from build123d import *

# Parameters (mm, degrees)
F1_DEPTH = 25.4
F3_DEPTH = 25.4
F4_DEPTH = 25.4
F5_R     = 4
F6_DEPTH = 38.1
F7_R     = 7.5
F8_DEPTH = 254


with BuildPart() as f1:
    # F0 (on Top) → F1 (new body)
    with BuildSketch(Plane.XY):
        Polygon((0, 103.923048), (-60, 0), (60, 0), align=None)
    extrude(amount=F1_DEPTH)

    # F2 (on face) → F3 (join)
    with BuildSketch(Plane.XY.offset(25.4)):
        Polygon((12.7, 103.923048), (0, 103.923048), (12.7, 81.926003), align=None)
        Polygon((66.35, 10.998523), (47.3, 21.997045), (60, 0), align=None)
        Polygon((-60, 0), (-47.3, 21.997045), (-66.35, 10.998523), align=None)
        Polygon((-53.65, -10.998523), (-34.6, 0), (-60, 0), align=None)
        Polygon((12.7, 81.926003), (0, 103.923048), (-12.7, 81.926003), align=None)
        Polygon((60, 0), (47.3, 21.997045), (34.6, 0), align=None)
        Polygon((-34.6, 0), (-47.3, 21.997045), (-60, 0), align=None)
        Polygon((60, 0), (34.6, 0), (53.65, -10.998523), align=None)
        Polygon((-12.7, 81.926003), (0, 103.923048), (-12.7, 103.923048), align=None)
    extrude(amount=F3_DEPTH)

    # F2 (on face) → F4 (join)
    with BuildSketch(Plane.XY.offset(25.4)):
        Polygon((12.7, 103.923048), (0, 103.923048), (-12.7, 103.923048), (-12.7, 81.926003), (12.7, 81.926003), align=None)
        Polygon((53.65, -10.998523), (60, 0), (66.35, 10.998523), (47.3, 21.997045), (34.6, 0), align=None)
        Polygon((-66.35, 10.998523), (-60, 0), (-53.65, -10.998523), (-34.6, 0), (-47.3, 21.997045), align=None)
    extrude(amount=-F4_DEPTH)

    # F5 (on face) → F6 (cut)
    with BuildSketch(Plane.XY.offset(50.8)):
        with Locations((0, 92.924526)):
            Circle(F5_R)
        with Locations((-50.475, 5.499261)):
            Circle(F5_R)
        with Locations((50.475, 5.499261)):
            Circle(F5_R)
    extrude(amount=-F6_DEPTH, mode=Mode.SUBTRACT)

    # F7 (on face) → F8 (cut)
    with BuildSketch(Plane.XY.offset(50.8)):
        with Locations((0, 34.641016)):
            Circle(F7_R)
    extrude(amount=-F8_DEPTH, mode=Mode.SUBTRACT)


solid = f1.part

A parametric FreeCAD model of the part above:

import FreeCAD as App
import Part
import Sketcher
from FreeCAD import Vector
Q = App.Units.Quantity


def add_polygon(sketch, points):
    """Adds a closed chain of lines whose ends are joined by coincident constraints."""
    first, n = sketch.GeometryCount, len(points)
    for a, b in zip(points, points[1:] + points[:1]):
        sketch.addGeometry(Part.LineSegment(App.Vector(*a, 0), App.Vector(*b, 0)), False)
    for i in range(n):
        sketch.addConstraint(Sketcher.Constraint("Coincident", first + i, 2, first + (i + 1) % n, 1))

doc = App.newDocument("Part")
body = doc.addObject("PartDesign::Body", "Body")

# Sketch on XY plane
sketch1 = body.newObject("Sketcher::SketchObject", "Sketch")
sketch1.AttachmentSupport = (doc.getObject("XY_Plane"), [""])
sketch1.MapMode = "FlatFace"
add_polygon(sketch1, [(0, 104), (-60, 0), (60, 0)])  # lines 0-2
sketch1.addConstraint(Sketcher.Constraint("Horizontal", 1))
sketch1.addConstraint(Sketcher.Constraint("Symmetric", 0, 2, 1, 2, -1, 1))
sketch1.addConstraint(Sketcher.Constraint("PointOnObject", 2, 2, -2))
sketch1.addConstraint(Sketcher.Constraint("Angle", 0, Q("-120 deg")))
sketch1.addConstraint(Sketcher.Constraint("DistanceX", 1, 1, 1, 2, Q("120 mm")))
pad1 = body.newObject("PartDesign::Pad", "Pad")
pad1.Profile = sketch1
pad1.Length = Q("1 in")

# Sketch on XY plane
sketch2 = body.newObject("Sketcher::SketchObject", "Sketch001")
sketch2.AttachmentSupport = (doc.getObject("XY_Plane"), [""])
sketch2.MapMode = "FlatFace"
sketch2.AttachmentOffset = App.Placement(Vector(0, 0, 1 * 25.4), App.Rotation())
add_polygon(sketch2, [(13, 104), (-13, 104), (-13, 82), (13, 82)])  # lines 0-3
add_polygon(sketch2, [(66, 11), (47, 22), (35, 0), (54, -11)])  # lines 4-7
add_polygon(sketch2, [(-47, 22), (-66, 11), (-54, -11), (-35, 0)])  # lines 8-11
sketch2.addConstraint(Sketcher.Constraint("Horizontal", 0))
sketch2.addConstraint(Sketcher.Constraint("Vertical", 1))
sketch2.addConstraint(Sketcher.Constraint("Horizontal", 2))
sketch2.addConstraint(Sketcher.Constraint("Vertical", 3))
sketch2.addConstraint(Sketcher.Constraint("Symmetric", 5, 2, 10, 2, -1, 1))
sketch2.addConstraint(Sketcher.Constraint("Symmetric", 7, 2, 8, 2, -2))
sketch2.addConstraint(Sketcher.Constraint("Symmetric", 6, 2, 9, 2, -2))
sketch2.addConstraint(Sketcher.Constraint("Symmetric", 4, 2, 11, 2, -2))
sketch2.addConstraint(Sketcher.Constraint("PointOnObject", 5, 2, -1))
sketch2.addConstraint(Sketcher.Constraint("Perpendicular", 4, 5))
sketch2.addConstraint(Sketcher.Constraint("Perpendicular", 5, 6))
sketch2.addConstraint(Sketcher.Constraint("Perpendicular", 6, 7))
sketch2.addConstraint(Sketcher.Constraint("DistanceX", 0, 2, 0, 1, Q("1 in")))
sketch2.addConstraint(Sketcher.Constraint("Distance", 5, Q("1 in")))
sketch2.addConstraint(Sketcher.Constraint("Angle", 4, Q("150.000001 deg")))
sketch2.addConstraint(Sketcher.Constraint("DistanceX", 0, 2, -1, 1, Q("0.5 in")))
sketch2.addConstraint(Sketcher.Constraint("DistanceX", 5, 2, 6, 2, Q("0.75 in")))
sketch2.addConstraint(Sketcher.Constraint("DistanceX", -1, 1, 4, 2, Q("47.3 mm")))
sketch2.addConstraint(Sketcher.Constraint("DistanceY", 1, 2, 1, 1, Q("21.997045 mm")))
sketch2.addConstraint(Sketcher.Constraint("DistanceY", 6, 2, 3, 2, Q("114.921571 mm")))
pad2 = body.newObject("PartDesign::Pad", "Pad001")
pad2.Profile = sketch2
pad2.Length = Q("1 in")

# Sketch on XY plane
sketch3 = body.newObject("Sketcher::SketchObject", "Sketch002")
sketch3.AttachmentSupport = (doc.getObject("XY_Plane"), [""])
sketch3.MapMode = "FlatFace"
sketch3.AttachmentOffset = App.Placement(Vector(0, 0, 1 * 25.4), App.Rotation())
add_polygon(sketch3, [(13, 104), (-13, 104), (-13, 82), (13, 82)])  # lines 0-3
add_polygon(sketch3, [(54, -11), (66, 11), (47, 22), (35, 0)])  # lines 4-7
add_polygon(sketch3, [(-66, 11), (-54, -11), (-35, 0), (-47, 22)])  # lines 8-11
sketch3.addConstraint(Sketcher.Constraint("Horizontal", 0))
sketch3.addConstraint(Sketcher.Constraint("Vertical", 1))
sketch3.addConstraint(Sketcher.Constraint("Horizontal", 2))
sketch3.addConstraint(Sketcher.Constraint("Vertical", 3))
sketch3.addConstraint(Sketcher.Constraint("Symmetric", 6, 2, 9, 2, -1, 1))
sketch3.addConstraint(Sketcher.Constraint("Symmetric", 7, 2, 8, 2, -2))
sketch3.addConstraint(Sketcher.Constraint("Symmetric", 5, 2, 10, 2, -2))
sketch3.addConstraint(Sketcher.Constraint("Symmetric", 4, 2, 11, 2, -2))
sketch3.addConstraint(Sketcher.Constraint("PointOnObject", 6, 2, -1))
sketch3.addConstraint(Sketcher.Constraint("Perpendicular", 4, 5))
sketch3.addConstraint(Sketcher.Constraint("Perpendicular", 5, 6))
sketch3.addConstraint(Sketcher.Constraint("Perpendicular", 6, 7))
sketch3.addConstraint(Sketcher.Constraint("DistanceX", 0, 2, 0, 1, Q("1 in")))
sketch3.addConstraint(Sketcher.Constraint("Distance", 4, Q("1 in")))
sketch3.addConstraint(Sketcher.Constraint("Angle", 4, Q("60.000001 deg")))
sketch3.addConstraint(Sketcher.Constraint("DistanceX", 0, 2, -1, 1, Q("0.5 in")))
sketch3.addConstraint(Sketcher.Constraint("DistanceX", 5, 2, 4, 2, Q("0.75 in")))
sketch3.addConstraint(Sketcher.Constraint("DistanceX", -1, 1, 4, 2, Q("66.35 mm")))
sketch3.addConstraint(Sketcher.Constraint("DistanceY", 1, 2, 1, 1, Q("21.997045 mm")))
sketch3.addConstraint(Sketcher.Constraint("DistanceY", 4, 2, 2, 2, Q("70.92748 mm")))
pad3 = body.newObject("PartDesign::Pad", "Pad002")
pad3.Profile = sketch3
pad3.Length = Q("1 in")
pad3.Reversed = True

# Sketch on XY plane
sketch4 = body.newObject("Sketcher::SketchObject", "Sketch003")
sketch4.AttachmentSupport = (doc.getObject("XY_Plane"), [""])
sketch4.MapMode = "FlatFace"
sketch4.AttachmentOffset = App.Placement(Vector(0, 0, 2 * 25.4), App.Rotation())
sketch4.addGeometry(Part.Circle(Vector(0, 92.9, 0), Vector(0, 0, 1), 4), False)
sketch4.addGeometry(Part.Circle(Vector(-50.5, 5.5, 0), Vector(0, 0, 1), 4), False)
sketch4.addGeometry(Part.Circle(Vector(50.5, 5.5, 0), Vector(0, 0, 1), 4), False)
sketch4.addConstraint(Sketcher.Constraint("Equal", 0, 1))
sketch4.addConstraint(Sketcher.Constraint("Equal", 1, 2))
sketch4.addConstraint(Sketcher.Constraint("Symmetric", 1, 3, 2, 3, -2))
sketch4.addConstraint(Sketcher.Constraint("PointOnObject", 0, 3, -2))
sketch4.addConstraint(Sketcher.Constraint("Diameter", 0, Q("8 mm")))
sketch4.addConstraint(Sketcher.Constraint("DistanceX", 1, 3, -1, 1, Q("50.475 mm")))
sketch4.addConstraint(Sketcher.Constraint("DistanceY", -1, 1, 1, 3, Q("5.499261 mm")))
sketch4.addConstraint(Sketcher.Constraint("DistanceY", -1, 1, 0, 3, Q("92.924526 mm")))
pocket1 = body.newObject("PartDesign::Pocket", "Pocket")
pocket1.Profile = sketch4
pocket1.Length = Q("1.5 in")

# Sketch on XY plane
sketch5 = body.newObject("Sketcher::SketchObject", "Sketch004")
sketch5.AttachmentSupport = (doc.getObject("XY_Plane"), [""])
sketch5.MapMode = "FlatFace"
sketch5.AttachmentOffset = App.Placement(Vector(0, 0, 2 * 25.4), App.Rotation())
sketch5.addGeometry(Part.Circle(Vector(0, 35, 0), Vector(0, 0, 1), 8), False)
sketch5.addConstraint(Sketcher.Constraint("PointOnObject", 0, 3, -2))
sketch5.addConstraint(Sketcher.Constraint("Diameter", 0, Q("15 mm")))
sketch5.addConstraint(Sketcher.Constraint("DistanceY", -1, 1, 0, 3, Q("34.641016 mm")))
pocket2 = body.newObject("PartDesign::Pocket", "Pocket001")
pocket2.Profile = sketch5
pocket2.Length = Q("10 in")

doc.recompute()
